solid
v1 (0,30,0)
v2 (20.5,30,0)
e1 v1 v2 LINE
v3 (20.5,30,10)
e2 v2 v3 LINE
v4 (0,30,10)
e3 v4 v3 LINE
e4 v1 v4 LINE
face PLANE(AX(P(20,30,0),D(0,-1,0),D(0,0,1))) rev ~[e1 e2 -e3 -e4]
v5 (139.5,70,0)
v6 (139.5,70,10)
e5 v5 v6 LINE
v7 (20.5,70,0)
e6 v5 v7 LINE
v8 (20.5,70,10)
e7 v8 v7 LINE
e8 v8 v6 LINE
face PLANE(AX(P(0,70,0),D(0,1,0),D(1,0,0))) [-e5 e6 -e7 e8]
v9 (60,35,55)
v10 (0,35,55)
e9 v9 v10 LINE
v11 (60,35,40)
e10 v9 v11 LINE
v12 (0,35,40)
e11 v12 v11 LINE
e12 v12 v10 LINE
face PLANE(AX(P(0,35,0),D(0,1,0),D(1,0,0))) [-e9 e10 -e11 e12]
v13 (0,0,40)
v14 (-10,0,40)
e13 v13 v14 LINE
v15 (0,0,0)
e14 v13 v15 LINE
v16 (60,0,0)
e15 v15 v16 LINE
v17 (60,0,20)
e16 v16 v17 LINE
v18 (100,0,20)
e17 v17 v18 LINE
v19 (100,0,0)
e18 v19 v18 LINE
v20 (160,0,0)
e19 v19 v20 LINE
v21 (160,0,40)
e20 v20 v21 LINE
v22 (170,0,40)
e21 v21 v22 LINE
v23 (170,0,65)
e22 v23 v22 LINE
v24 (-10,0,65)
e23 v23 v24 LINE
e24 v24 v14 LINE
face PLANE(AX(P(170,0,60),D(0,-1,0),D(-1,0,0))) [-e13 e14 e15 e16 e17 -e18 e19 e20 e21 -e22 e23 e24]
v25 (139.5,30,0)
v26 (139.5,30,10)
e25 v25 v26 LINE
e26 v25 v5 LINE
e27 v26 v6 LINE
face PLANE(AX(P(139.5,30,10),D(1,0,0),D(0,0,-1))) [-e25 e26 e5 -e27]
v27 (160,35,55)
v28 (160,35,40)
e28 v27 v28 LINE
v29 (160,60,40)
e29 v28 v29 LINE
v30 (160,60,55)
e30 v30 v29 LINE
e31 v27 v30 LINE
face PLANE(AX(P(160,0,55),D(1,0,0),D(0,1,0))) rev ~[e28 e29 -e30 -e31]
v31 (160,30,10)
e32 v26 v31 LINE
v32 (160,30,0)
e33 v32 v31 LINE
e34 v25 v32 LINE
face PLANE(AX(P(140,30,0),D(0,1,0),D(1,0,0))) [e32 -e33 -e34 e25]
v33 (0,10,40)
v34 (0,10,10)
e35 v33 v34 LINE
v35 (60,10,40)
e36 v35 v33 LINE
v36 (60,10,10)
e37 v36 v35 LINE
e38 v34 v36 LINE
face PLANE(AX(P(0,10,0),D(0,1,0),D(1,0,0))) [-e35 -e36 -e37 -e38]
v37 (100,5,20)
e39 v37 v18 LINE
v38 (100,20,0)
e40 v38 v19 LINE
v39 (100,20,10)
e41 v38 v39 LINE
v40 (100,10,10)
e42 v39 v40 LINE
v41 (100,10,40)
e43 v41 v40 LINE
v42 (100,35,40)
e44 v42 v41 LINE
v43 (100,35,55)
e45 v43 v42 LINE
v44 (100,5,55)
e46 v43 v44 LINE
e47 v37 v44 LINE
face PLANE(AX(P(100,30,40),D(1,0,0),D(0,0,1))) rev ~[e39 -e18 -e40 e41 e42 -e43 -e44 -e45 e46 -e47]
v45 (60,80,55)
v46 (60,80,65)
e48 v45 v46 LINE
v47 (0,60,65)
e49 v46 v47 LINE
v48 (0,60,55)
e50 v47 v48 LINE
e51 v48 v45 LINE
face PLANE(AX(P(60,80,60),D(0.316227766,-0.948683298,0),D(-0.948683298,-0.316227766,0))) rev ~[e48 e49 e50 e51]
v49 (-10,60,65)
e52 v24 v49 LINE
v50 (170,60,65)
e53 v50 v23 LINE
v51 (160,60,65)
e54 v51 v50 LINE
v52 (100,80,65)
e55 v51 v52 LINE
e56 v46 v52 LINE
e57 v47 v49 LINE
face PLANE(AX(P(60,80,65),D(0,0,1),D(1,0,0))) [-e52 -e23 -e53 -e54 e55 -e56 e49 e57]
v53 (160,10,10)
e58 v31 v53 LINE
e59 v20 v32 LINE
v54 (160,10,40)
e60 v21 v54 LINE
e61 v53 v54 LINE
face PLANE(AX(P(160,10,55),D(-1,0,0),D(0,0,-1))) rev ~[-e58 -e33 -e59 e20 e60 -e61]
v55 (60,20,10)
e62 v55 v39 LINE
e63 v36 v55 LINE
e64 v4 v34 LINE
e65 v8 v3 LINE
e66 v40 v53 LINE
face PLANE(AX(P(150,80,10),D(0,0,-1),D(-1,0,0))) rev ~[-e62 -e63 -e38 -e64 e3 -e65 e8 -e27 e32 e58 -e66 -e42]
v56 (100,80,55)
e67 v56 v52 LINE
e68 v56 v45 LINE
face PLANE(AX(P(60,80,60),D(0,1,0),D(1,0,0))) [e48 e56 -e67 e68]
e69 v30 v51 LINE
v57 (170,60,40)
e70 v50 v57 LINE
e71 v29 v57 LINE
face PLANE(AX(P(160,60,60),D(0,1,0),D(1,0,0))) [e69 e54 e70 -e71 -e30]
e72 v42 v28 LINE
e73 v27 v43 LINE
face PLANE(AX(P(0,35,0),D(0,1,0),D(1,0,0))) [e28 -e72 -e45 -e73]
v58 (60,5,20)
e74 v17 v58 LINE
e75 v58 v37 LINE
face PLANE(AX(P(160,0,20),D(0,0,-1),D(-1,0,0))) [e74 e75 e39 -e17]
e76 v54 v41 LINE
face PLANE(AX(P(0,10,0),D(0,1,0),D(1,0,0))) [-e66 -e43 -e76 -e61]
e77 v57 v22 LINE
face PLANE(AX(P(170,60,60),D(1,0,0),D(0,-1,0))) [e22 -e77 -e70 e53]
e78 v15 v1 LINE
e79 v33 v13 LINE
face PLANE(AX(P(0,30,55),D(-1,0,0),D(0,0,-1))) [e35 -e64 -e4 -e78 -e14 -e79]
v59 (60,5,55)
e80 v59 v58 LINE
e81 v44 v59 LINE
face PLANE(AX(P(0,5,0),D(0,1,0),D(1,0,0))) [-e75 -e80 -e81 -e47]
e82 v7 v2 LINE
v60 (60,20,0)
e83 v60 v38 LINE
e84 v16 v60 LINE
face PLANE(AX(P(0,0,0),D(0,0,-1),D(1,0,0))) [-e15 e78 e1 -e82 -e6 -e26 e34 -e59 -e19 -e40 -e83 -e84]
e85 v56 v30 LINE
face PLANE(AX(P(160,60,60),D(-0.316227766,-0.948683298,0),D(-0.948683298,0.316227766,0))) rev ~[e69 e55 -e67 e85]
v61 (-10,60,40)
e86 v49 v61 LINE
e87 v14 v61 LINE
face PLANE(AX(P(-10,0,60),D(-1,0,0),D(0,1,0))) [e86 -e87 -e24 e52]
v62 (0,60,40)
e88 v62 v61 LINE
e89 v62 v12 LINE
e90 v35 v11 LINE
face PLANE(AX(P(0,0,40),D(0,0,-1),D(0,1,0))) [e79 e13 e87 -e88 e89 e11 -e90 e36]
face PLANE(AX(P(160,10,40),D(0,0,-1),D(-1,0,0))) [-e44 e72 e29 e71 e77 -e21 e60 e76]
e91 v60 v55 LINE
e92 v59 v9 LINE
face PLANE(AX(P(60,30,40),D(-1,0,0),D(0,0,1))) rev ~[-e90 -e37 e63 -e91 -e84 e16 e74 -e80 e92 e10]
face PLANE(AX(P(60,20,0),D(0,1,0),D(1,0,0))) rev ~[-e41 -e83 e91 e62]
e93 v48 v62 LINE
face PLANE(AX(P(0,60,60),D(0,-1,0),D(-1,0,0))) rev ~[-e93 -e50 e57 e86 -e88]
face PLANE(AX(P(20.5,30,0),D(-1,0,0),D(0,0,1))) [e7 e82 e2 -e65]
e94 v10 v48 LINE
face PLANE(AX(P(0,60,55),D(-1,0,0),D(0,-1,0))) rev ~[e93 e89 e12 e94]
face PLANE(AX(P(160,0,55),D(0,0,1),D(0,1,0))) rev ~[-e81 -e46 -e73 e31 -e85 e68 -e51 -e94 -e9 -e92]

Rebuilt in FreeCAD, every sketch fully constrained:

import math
import FreeCAD as App
import Part
import Sketcher
from FreeCAD import Vector
Q = App.Units.Quantity

doc = App.newDocument("Part")
body = doc.addObject("PartDesign::Body", "Body")

# Sketch on XZ plane
sketch1 = doc.addObject("Sketcher::SketchObject", "Sketch")
body.addObject(sketch1)
sketch1.AttachmentSupport = (doc.XZ_Plane, [""])
sketch1.MapMode = "FlatFace"
sketch1.addGeometry([
    Part.LineSegment(Vector(160, 0, 0), Vector(0, 0, 0)),
    Part.LineSegment(Vector(0, 0, 0), Vector(0, 60, 0)),
    Part.LineSegment(Vector(0, 60, 0), Vector(160, 60, 0)),
    Part.LineSegment(Vector(160, 60, 0), Vector(160, 0, 0)),
], False)
sketch1.addConstraint([
    Sketcher.Constraint("Coincident", 0, 2, 1, 1),
    Sketcher.Constraint("Coincident", 1, 2, 2, 1),
    Sketcher.Constraint("Coincident", 2, 2, 3, 1),
    Sketcher.Constraint("Coincident", 3, 2, 0, 1),
    Sketcher.Constraint("Horizontal", 0),
    Sketcher.Constraint("Vertical", 1),
    Sketcher.Constraint("Horizontal", 2),
    Sketcher.Constraint("Vertical", 3),
    Sketcher.Constraint("Coincident", 0, 2, -1, 1),
    Sketcher.Constraint("DistanceX", 0, 2, 0, 1, Q("160 mm")),
    Sketcher.Constraint("DistanceY", 1, 1, 1, 2, Q("60 mm")),
])
pad1 = doc.addObject("PartDesign::Pad", "Pad")
body.addObject(pad1)
pad1.Profile = sketch1
pad1.Length = 80
pad1.Reversed = True

# Sketch on XZ plane
sketch2 = doc.addObject("Sketcher::SketchObject", "Sketch001")
body.addObject(sketch2)
sketch2.AttachmentSupport = (doc.XZ_Plane, [""])
sketch2.MapMode = "FlatFace"
sketch2.AttachmentOffset = App.Placement(Vector(0, 0, -80), App.Rotation())
sketch2.addGeometry([
    Part.LineSegment(Vector(160, 40, 0), Vector(160, 10, 0)),
    Part.LineSegment(Vector(160, 10, 0), Vector(0, 10, 0)),
    Part.LineSegment(Vector(0, 10, 0), Vector(0, 40, 0)),
    Part.LineSegment(Vector(0, 40, 0), Vector(160, 40, 0)),
], False)
sketch2.addConstraint([
    Sketcher.Constraint("Coincident", 0, 2, 1, 1),
    Sketcher.Constraint("Coincident", 1, 2, 2, 1),
    Sketcher.Constraint("Coincident", 2, 2, 3, 1),
    Sketcher.Constraint("Coincident", 3, 2, 0, 1),
    Sketcher.Constraint("Vertical", 0),
    Sketcher.Constraint("Horizontal", 1),
    Sketcher.Constraint("Vertical", 2),
    Sketcher.Constraint("Horizontal", 3),
    Sketcher.Constraint("PointOnObject", 1, 2, -2),
    Sketcher.Constraint("DistanceX", 1, 2, 1, 1, Q("160 mm")),
    Sketcher.Constraint("DistanceY", 0, 2, 0, 1, Q("30 mm")),
    Sketcher.Constraint("DistanceY", -1, 1, 0, 2, Q("10 mm")),
])
pocket1 = doc.addObject("PartDesign::Pocket", "Pocket")
body.addObject(pocket1)
pocket1.Profile = sketch2
pocket1.Length = 70
pocket1.Reversed = True

# Sketch on XZ plane
sketch3 = doc.addObject("Sketcher::SketchObject", "Sketch002")
body.addObject(sketch3)
sketch3.AttachmentSupport = (doc.XZ_Plane, [""])
sketch3.MapMode = "FlatFace"
sketch3.AttachmentOffset = App.Placement(Vector(0, 0, -80), App.Rotation())
sketch3.addGeometry([
    Part.LineSegment(Vector(160, 50, 0), Vector(160, 40, 0)),
    Part.LineSegment(Vector(160, 40, 0), Vector(0, 40, 0)),
    Part.LineSegment(Vector(0, 40, 0), Vector(0, 50, 0)),
    Part.LineSegment(Vector(0, 50, 0), Vector(160, 50, 0)),
], False)
sketch3.addConstraint([
    Sketcher.Constraint("Coincident", 0, 2, 1, 1),
    Sketcher.Constraint("Coincident", 1, 2, 2, 1),
    Sketcher.Constraint("Coincident", 2, 2, 3, 1),
    Sketcher.Constraint("Coincident", 3, 2, 0, 1),
    Sketcher.Constraint("Vertical", 0),
    Sketcher.Constraint("Horizontal", 1),
    Sketcher.Constraint("Vertical", 2),
    Sketcher.Constraint("Horizontal", 3),
    Sketcher.Constraint("PointOnObject", 1, 2, -2),
    Sketcher.Constraint("DistanceX", 1, 2, 1, 1, Q("160 mm")),
    Sketcher.Constraint("DistanceY", 0, 2, 0, 1, Q("10 mm")),
    Sketcher.Constraint("DistanceY", -1, 1, 0, 2, Q("40 mm")),
])
pocket2 = doc.addObject("PartDesign::Pocket", "Pocket001")
body.addObject(pocket2)
pocket2.Profile = sketch3
pocket2.Length = 10
pocket2.Reversed = True

# Sketch on XY plane
sketch4 = doc.addObject("Sketcher::SketchObject", "Sketch003")
body.addObject(sketch4)
sketch4.AttachmentSupport = (doc.XY_Plane, [""])
sketch4.MapMode = "FlatFace"
sketch4.AttachmentOffset = App.Placement(Vector(0, 0, 40), App.Rotation())
sketch4.addGeometry([
    Part.LineSegment(Vector(160, 70, 0), Vector(160, 10, 0)),  # 0
    Part.ArcOfCircle(Part.Circle(Vector(80, -13.3333, 0), Vector(0, 0, 1), 83.333324), math.radians(16.260183), math.radians(90)),  # 1
    Part.LineSegment(Vector(80, 70, 0), Vector(160, 70, 0)),  # 2
    Part.ArcOfCircle(Part.Circle(Vector(80, -13.3333, 0), Vector(0, 0, 1), 83.333324), math.radians(90), math.radians(163.739817)),  # 3
    Part.LineSegment(Vector(0, 10, 0), Vector(0, 70, 0)),  # 4
    Part.LineSegment(Vector(0, 70, 0), Vector(80, 70, 0)),  # 5
], False)
sketch4.addConstraint([
    Sketcher.Constraint("Coincident", 0, 2, 1, 1),
    Sketcher.Constraint("Tangent", 1, 2, 2, 1),
    Sketcher.Constraint("Coincident", 2, 2, 0, 1),
    Sketcher.Constraint("Coincident", 3, 2, 4, 1),
    Sketcher.Constraint("Coincident", 4, 2, 5, 1),
    Sketcher.Constraint("Tangent", 5, 2, 3, 1),
    Sketcher.Constraint("Vertical", 0),
    Sketcher.Constraint("Horizontal", 2),
    Sketcher.Constraint("Vertical", 4),
    Sketcher.Constraint("Horizontal", 5),
    Sketcher.Constraint("Coincident", 3, 3, 1, 3),
    Sketcher.Constraint("Equal", 1, 3),
    Sketcher.Constraint("PointOnObject", 3, 2, -2),
    Sketcher.Constraint("Horizontal", 0, 2, 3, 2),
    Sketcher.Constraint("DistanceX", 2, 1, 2, 2, Q("80 mm")),
    Sketcher.Constraint("DistanceY", 0, 2, 0, 1, Q("60 mm")),
    Sketcher.Constraint("DistanceY", -1, 1, 0, 2, Q("10 mm")),
])
pocket3 = doc.addObject("PartDesign::Pocket", "Pocket002")
body.addObject(pocket3)
pocket3.Profile = sketch4
pocket3.Length = 10
pocket3.Reversed = True

# Sketch on XY plane
sketch5 = doc.addObject("Sketcher::SketchObject", "Sketch004")
body.addObject(sketch5)
sketch5.AttachmentSupport = (doc.XY_Plane, [""])
sketch5.MapMode = "FlatFace"
sketch5.addGeometry([
    Part.LineSegment(Vector(0, 80, 0), Vector(20, 80, 0)),  # 0
    Part.LineSegment(Vector(20, 80, 0), Vector(20, 30, 0)),  # 1
    Part.LineSegment(Vector(20, 30, 0), Vector(0, 30, 0)),  # 2
    Part.LineSegment(Vector(0, 30, 0), Vector(0, 80, 0)),  # 3
    Part.LineSegment(Vector(140, 80, 0), Vector(160, 80, 0)),  # 4
    Part.LineSegment(Vector(160, 80, 0), Vector(160, 30, 0)),  # 5
    Part.LineSegment(Vector(160, 30, 0), Vector(140, 30, 0)),  # 6
    Part.LineSegment(Vector(140, 30, 0), Vector(140, 80, 0)),  # 7
], False)
sketch5.addConstraint([
    Sketcher.Constraint("Coincident", 0, 2, 1, 1),
    Sketcher.Constraint("Coincident", 1, 2, 2, 1),
    Sketcher.Constraint("Coincident", 2, 2, 3, 1),
    Sketcher.Constraint("Coincident", 3, 2, 0, 1),
    Sketcher.Constraint("Coincident", 4, 2, 5, 1),
    Sketcher.Constraint("Coincident", 5, 2, 6, 1),
    Sketcher.Constraint("Coincident", 6, 2, 7, 1),
    Sketcher.Constraint("Coincident", 7, 2, 4, 1),
    Sketcher.Constraint("Horizontal", 0),
    Sketcher.Constraint("Vertical", 1),
    Sketcher.Constraint("Horizontal", 2),
    Sketcher.Constraint("Vertical", 3),
    Sketcher.Constraint("Horizontal", 4),
    Sketcher.Constraint("Vertical", 5),
    Sketcher.Constraint("Horizontal", 6),
    Sketcher.Constraint("Vertical", 7),
    Sketcher.Constraint("PointOnObject", 2, 2, -2),
    Sketcher.Constraint("Horizontal", 3, 2, 4, 2),
    Sketcher.Constraint("Horizontal", 2, 2, 5, 2),
    Sketcher.Constraint("Equal", 2, 4),
    Sketcher.Constraint("DistanceX", 0, 1, 0, 2, Q("20 mm")),
    Sketcher.Constraint("DistanceY", 1, 2, 1, 1, Q("50 mm")),
    Sketcher.Constraint("DistanceY", -1, 1, 0, 2, Q("80 mm")),
    Sketcher.Constraint("DistanceX", -1, 1, 4, 2, Q("160 mm")),
])
pocket4 = doc.addObject("PartDesign::Pocket", "Pocket003")
body.addObject(pocket4)
pocket4.Profile = sketch5
pocket4.Length = 10
pocket4.Reversed = True

# Sketch on XZ plane
sketch6 = doc.addObject("Sketcher::SketchObject", "Sketch005")
body.addObject(sketch6)
sketch6.AttachmentSupport = (doc.XZ_Plane, [""])
sketch6.MapMode = "FlatFace"
sketch6.AttachmentOffset = App.Placement(Vector(0, 0, -80), App.Rotation())
sketch6.addGeometry([
    Part.LineSegment(Vector(140, 0, 0), Vector(20, 0, 0)),
    Part.LineSegment(Vector(20, 0, 0), Vector(20, 10, 0)),
    Part.LineSegment(Vector(20, 10, 0), Vector(140, 10, 0)),
    Part.LineSegment(Vector(140, 10, 0), Vector(140, 0, 0)),
], False)
sketch6.addConstraint([
    Sketcher.Constraint("Coincident", 0, 2, 1, 1),
    Sketcher.Constraint("Coincident", 1, 2, 2, 1),
    Sketcher.Constraint("Coincident", 2, 2, 3, 1),
    Sketcher.Constraint("Coincident", 3, 2, 0, 1),
    Sketcher.Constraint("Horizontal", 0),
    Sketcher.Constraint("Vertical", 1),
    Sketcher.Constraint("Horizontal", 2),
    Sketcher.Constraint("Vertical", 3),
    Sketcher.Constraint("PointOnObject", 0, 2, -1),
    Sketcher.Constraint("DistanceX", 0, 2, 0, 1, Q("120 mm")),
    Sketcher.Constraint("DistanceY", 1, 1, 1, 2, Q("10 mm")),
    Sketcher.Constraint("DistanceX", -1, 1, 0, 2, Q("20 mm")),
])
pocket5 = doc.addObject("PartDesign::Pocket", "Pocket004")
body.addObject(pocket5)
pocket5.Profile = sketch6
pocket5.Length = 10
pocket5.Reversed = True

# Sketch on XY plane
sketch7 = doc.addObject("Sketcher::SketchObject", "Sketch006")
body.addObject(sketch7)
sketch7.AttachmentSupport = (doc.XY_Plane, [""])
sketch7.MapMode = "FlatFace"
sketch7.AttachmentOffset = App.Placement(Vector(0, 0, 50), App.Rotation())
sketch7.addGeometry([
    Part.LineSegment(Vector(100, 80, 0), Vector(160, 80, 0)),  # 0
    Part.LineSegment(Vector(160, 80, 0), Vector(160, 60, 0)),  # 1
    Part.LineSegment(Vector(160, 60, 0), Vector(100, 80, 0)),  # 2
    Part.LineSegment(Vector(0, 80, 0), Vector(60, 80, 0)),  # 3
    Part.LineSegment(Vector(60, 80, 0), Vector(0, 60, 0)),  # 4
    Part.LineSegment(Vector(0, 60, 0), Vector(0, 80, 0)),  # 5
], False)
sketch7.addConstraint([
    Sketcher.Constraint("Coincident", 0, 2, 1, 1),
    Sketcher.Constraint("Coincident", 1, 2, 2, 1),
    Sketcher.Constraint("Coincident", 2, 2, 0, 1),
    Sketcher.Constraint("Coincident", 3, 2, 4, 1),
    Sketcher.Constraint("Coincident", 4, 2, 5, 1),
    Sketcher.Constraint("Coincident", 5, 2, 3, 1),
    Sketcher.Constraint("Horizontal", 0),
    Sketcher.Constraint("Vertical", 1),
    Sketcher.Constraint("Horizontal", 3),
    Sketcher.Constraint("Vertical", 5),
    Sketcher.Constraint("PointOnObject", 4, 2, -2),
    Sketcher.Constraint("Horizontal", 2, 2, 3, 2),
    Sketcher.Constraint("Horizontal", 1, 2, 4, 2),
    Sketcher.Constraint("Equal", 0, 3),
    Sketcher.Constraint("DistanceX", 0, 1, 0, 2, Q("60 mm")),
    Sketcher.Constraint("DistanceY", 1, 2, 1, 1, Q("20 mm")),
    Sketcher.Constraint("DistanceY", -1, 1, 1, 2, Q("60 mm")),
    Sketcher.Constraint("DistanceX", -1, 1, 0, 2, Q("160 mm")),
])
pocket6 = doc.addObject("PartDesign::Pocket", "Pocket005")
body.addObject(pocket6)
pocket6.Profile = sketch7
pocket6.Length = 10
pocket6.Reversed = True

# Sketch on YZ plane
sketch8 = doc.addObject("Sketcher::SketchObject", "Sketch007")
body.addObject(sketch8)
sketch8.AttachmentSupport = (doc.YZ_Plane, [""])
sketch8.MapMode = "FlatFace"
sketch8.AttachmentOffset = App.Placement(Vector(0, 0, 140), App.Rotation())
sketch8.addGeometry([
    Part.LineSegment(Vector(30, 0, 0), Vector(70, 0, 0)),
    Part.LineSegment(Vector(70, 0, 0), Vector(70, 10, 0)),
    Part.LineSegment(Vector(70, 10, 0), Vector(30, 10, 0)),
    Part.LineSegment(Vector(30, 10, 0), Vector(30, 0, 0)),
], False)
sketch8.addConstraint([
    Sketcher.Constraint("Coincident", 0, 2, 1, 1),
    Sketcher.Constraint("Coincident", 1, 2, 2, 1),
    Sketcher.Constraint("Coincident", 2, 2, 3, 1),
    Sketcher.Constraint("Coincident", 3, 2, 0, 1),
    Sketcher.Constraint("Horizontal", 0),
    Sketcher.Constraint("Vertical", 1),
    Sketcher.Constraint("Horizontal", 2),
    Sketcher.Constraint("Vertical", 3),
    Sketcher.Constraint("PointOnObject", 0, 2, -1),
    Sketcher.Constraint("DistanceX", 0, 1, 0, 2, Q("40 mm")),
    Sketcher.Constraint("DistanceY", 1, 1, 1, 2, Q("10 mm")),
    Sketcher.Constraint("DistanceX", -1, 1, 0, 2, Q("70 mm")),
])
pocket7 = doc.addObject("PartDesign::Pocket", "Pocket006")
body.addObject(pocket7)
pocket7.Profile = sketch8
pocket7.Length = 0.5

# Sketch on YZ plane
sketch9 = doc.addObject("Sketcher::SketchObject", "Sketch008")
body.addObject(sketch9)
sketch9.AttachmentSupport = (doc.YZ_Plane, [""])
sketch9.MapMode = "FlatFace"
sketch9.AttachmentOffset = App.Placement(Vector(0, 0, 20), App.Rotation())
sketch9.addGeometry([
    Part.LineSegment(Vector(30, 10, 0), Vector(70, 10, 0)),
    Part.LineSegment(Vector(70, 10, 0), Vector(70, 0, 0)),
    Part.LineSegment(Vector(70, 0, 0), Vector(30, 0, 0)),
    Part.LineSegment(Vector(30, 0, 0), Vector(30, 10, 0)),
], False)
sketch9.addConstraint([
    Sketcher.Constraint("Coincident", 0, 2, 1, 1),
    Sketcher.Constraint("Coincident", 1, 2, 2, 1),
    Sketcher.Constraint("Coincident", 2, 2, 3, 1),
    Sketcher.Constraint("Coincident", 3, 2, 0, 1),
    Sketcher.Constraint("Horizontal", 0),
    Sketcher.Constraint("Vertical", 1),
    Sketcher.Constraint("Horizontal", 2),
    Sketcher.Constraint("Vertical", 3),
    Sketcher.Constraint("PointOnObject", 1, 2, -1),
    Sketcher.Constraint("DistanceX", 0, 1, 0, 2, Q("40 mm")),
    Sketcher.Constraint("DistanceY", 1, 2, 1, 1, Q("10 mm")),
    Sketcher.Constraint("DistanceX", -1, 1, 0, 2, Q("70 mm")),
])
pocket8 = doc.addObject("PartDesign::Pocket", "Pocket007")
body.addObject(pocket8)
pocket8.Profile = sketch9
pocket8.Length = 0.5
pocket8.Reversed = True

# Sketch on XY plane
sketch10 = doc.addObject("Sketcher::SketchObject", "Sketch009")
body.addObject(sketch10)
sketch10.AttachmentSupport = (doc.XY_Plane, [""])
sketch10.MapMode = "FlatFace"
sketch10.AttachmentOffset = App.Placement(Vector(0, 0, 40), App.Rotation())
sketch10.addGeometry([
    Part.LineSegment(Vector(160, 10, 0), Vector(0, 10, 0)),
    Part.ArcOfCircle(Part.Circle(Vector(80, -13.3333, 0), Vector(0, 0, 1), 83.333324), math.radians(16.260183), math.radians(163.739817)),
], False)
sketch10.addConstraint([
    Sketcher.Constraint("Coincident", 0, 1, 1, 1),
    Sketcher.Constraint("Coincident", 1, 2, 0, 2),
    Sketcher.Constraint("Horizontal", 0),
    Sketcher.Constraint("PointOnObject", 1, 2, -2),
    Sketcher.Constraint("DistanceX", 0, 2, 0, 1, Q("160 mm")),
    Sketcher.Constraint("DistanceY", -1, 1, 0, 1, Q("10 mm")),
    Sketcher.Constraint("Radius", 1, Q("83.3333 mm")),
])
pocket9 = doc.addObject("PartDesign::Pocket", "Pocket008")
body.addObject(pocket9)
pocket9.Profile = sketch10
pocket9.Length = 10
pocket9.Reversed = True

# Sketch on XY plane
sketch11 = doc.addObject("Sketcher::SketchObject", "Sketch010")
body.addObject(sketch11)
sketch11.AttachmentSupport = (doc.XY_Plane, [""])
sketch11.MapMode = "FlatFace"
sketch11.AttachmentOffset = App.Placement(Vector(0, 0, 50), App.Rotation())
sketch11.addGeometry([
    Part.LineSegment(Vector(60, 80, 0), Vector(100, 80, 0)),  # 0
    Part.LineSegment(Vector(100, 80, 0), Vector(160, 60, 0)),  # 1
    Part.LineSegment(Vector(160, 60, 0), Vector(160, 10, 0)),  # 2
    Part.LineSegment(Vector(160, 10, 0), Vector(0, 10, 0)),  # 3
    Part.LineSegment(Vector(0, 10, 0), Vector(0, 60, 0)),  # 4
    Part.LineSegment(Vector(0, 60, 0), Vector(60, 80, 0)),  # 5
], False)
sketch11.addConstraint([
    Sketcher.Constraint("Coincident", 0, 2, 1, 1),
    Sketcher.Constraint("Coincident", 1, 2, 2, 1),
    Sketcher.Constraint("Coincident", 2, 2, 3, 1),
    Sketcher.Constraint("Coincident", 3, 2, 4, 1),
    Sketcher.Constraint("Coincident", 4, 2, 5, 1),
    Sketcher.Constraint("Coincident", 5, 2, 0, 1),
    Sketcher.Constraint("Horizontal", 0),
    Sketcher.Constraint("Vertical", 2),
    Sketcher.Constraint("Horizontal", 3),
    Sketcher.Constraint("Vertical", 4),
    Sketcher.Constraint("PointOnObject", 3, 2, -2),
    Sketcher.Constraint("Horizontal", 1, 2, 4, 2),
    Sketcher.Constraint("Equal", 1, 5),
    Sketcher.Constraint("DistanceX", 0, 1, 0, 2, Q("40 mm")),
    Sketcher.Constraint("DistanceX", 3, 2, 3, 1, Q("160 mm")),
    Sketcher.Constraint("DistanceY", 2, 2, 2, 1, Q("50 mm")),
    Sketcher.Constraint("DistanceY", -1, 1, 0, 2, Q("80 mm")),
    Sketcher.Constraint("DistanceY", -1, 1, 1, 2, Q("60 mm")),
])
pocket10 = doc.addObject("PartDesign::Pocket", "Pocket009")
body.addObject(pocket10)
pocket10.Profile = sketch11
pocket10.Length = 5
pocket10.Reversed = True

# Sketch on XZ plane
sketch12 = doc.addObject("Sketcher::SketchObject", "Sketch011")
body.addObject(sketch12)
sketch12.AttachmentSupport = (doc.XZ_Plane, [""])
sketch12.MapMode = "FlatFace"
sketch12.AttachmentOffset = App.Placement(Vector(0, 0, -10), App.Rotation())
sketch12.addGeometry([
    Part.LineSegment(Vector(0, 40, 0), Vector(0, 55, 0)),
    Part.LineSegment(Vector(0, 55, 0), Vector(160, 55, 0)),
    Part.LineSegment(Vector(160, 55, 0), Vector(160, 40, 0)),
    Part.LineSegment(Vector(160, 40, 0), Vector(0, 40, 0)),
], False)
sketch12.addConstraint([
    Sketcher.Constraint("Coincident", 0, 2, 1, 1),
    Sketcher.Constraint("Coincident", 1, 2, 2, 1),
    Sketcher.Constraint("Coincident", 2, 2, 3, 1),
    Sketcher.Constraint("Coincident", 3, 2, 0, 1),
    Sketcher.Constraint("Vertical", 0),
    Sketcher.Constraint("Horizontal", 1),
    Sketcher.Constraint("Vertical", 2),
    Sketcher.Constraint("Horizontal", 3),
    Sketcher.Constraint("PointOnObject", 0, 2, -2),
    Sketcher.Constraint("DistanceX", 1, 1, 1, 2, Q("160 mm")),
    Sketcher.Constraint("DistanceY", 0, 1, 0, 2, Q("15 mm")),
    Sketcher.Constraint("DistanceY", -1, 1, 0, 2, Q("55 mm")),
])
pad2 = doc.addObject("PartDesign::Pad", "Pad001")
body.addObject(pad2)
pad2.Profile = sketch12
pad2.Length = 20
pad2.Reversed = True

# Sketch on XZ plane
sketch13 = doc.addObject("Sketcher::SketchObject", "Sketch012")
body.addObject(sketch13)
sketch13.AttachmentSupport = (doc.XZ_Plane, [""])
sketch13.MapMode = "FlatFace"
sketch13.AttachmentOffset = App.Placement(Vector(0, 0, -30), App.Rotation())
sketch13.addGeometry([
    Part.LineSegment(Vector(100, 40, 0), Vector(60, 40, 0)),
    Part.LineSegment(Vector(60, 40, 0), Vector(60, 55, 0)),
    Part.LineSegment(Vector(60, 55, 0), Vector(100, 55, 0)),
    Part.LineSegment(Vector(100, 55, 0), Vector(100, 40, 0)),
], False)
sketch13.addConstraint([
    Sketcher.Constraint("Coincident", 0, 2, 1, 1),
    Sketcher.Constraint("Coincident", 1, 2, 2, 1),
    Sketcher.Constraint("Coincident", 2, 2, 3, 1),
    Sketcher.Constraint("Coincident", 3, 2, 0, 1),
    Sketcher.Constraint("Horizontal", 0),
    Sketcher.Constraint("Vertical", 1),
    Sketcher.Constraint("Horizontal", 2),
    Sketcher.Constraint("Vertical", 3),
    Sketcher.Constraint("DistanceY", 1, 1, 1, 2, Q("15 mm")),
    Sketcher.Constraint("DistanceX", -1, 1, 0, 2, Q("60 mm")),
    Sketcher.Constraint("DistanceX", 0, 2, 0, 1, Q("40 mm")),
    Sketcher.Constraint("DistanceY", -1, 1, 0, 2, Q("40 mm")),
])
pocket11 = doc.addObject("PartDesign::Pocket", "Pocket010")
body.addObject(pocket11)
pocket11.Profile = sketch13
pocket11.Length = 20
pocket11.Reversed = True

# Sketch on YZ plane
sketch14 = doc.addObject("Sketcher::SketchObject", "Sketch013")
body.addObject(sketch14)
sketch14.AttachmentSupport = (doc.YZ_Plane, [""])
sketch14.MapMode = "FlatFace"
sketch14.addGeometry([
    Part.LineSegment(Vector(30, 55, 0), Vector(30, 40, 0)),  # 0
    Part.LineSegment(Vector(30, 40, 0), Vector(0, 40, 0)),  # 1
    Part.LineSegment(Vector(0, 40, 0), Vector(0, 60, 0)),  # 2
    Part.LineSegment(Vector(0, 60, 0), Vector(60, 60, 0)),  # 3
    Part.LineSegment(Vector(60, 60, 0), Vector(60, 55, 0)),  # 4
    Part.LineSegment(Vector(60, 55, 0), Vector(30, 55, 0)),  # 5
], False)
sketch14.addConstraint([
    Sketcher.Constraint("Coincident", 0, 2, 1, 1),
    Sketcher.Constraint("Coincident", 1, 2, 2, 1),
    Sketcher.Constraint("Coincident", 2, 2, 3, 1),
    Sketcher.Constraint("Coincident", 3, 2, 4, 1),
    Sketcher.Constraint("Coincident", 4, 2, 5, 1),
    Sketcher.Constraint("Coincident", 5, 2, 0, 1),
    Sketcher.Constraint("Vertical", 0),
    Sketcher.Constraint("Horizontal", 1),
    Sketcher.Constraint("Vertical", 2),
    Sketcher.Constraint("Horizontal", 3),
    Sketcher.Constraint("Vertical", 4),
    Sketcher.Constraint("Horizontal", 5),
    Sketcher.Constraint("PointOnObject", 1, 2, -2),
    Sketcher.Constraint("Equal", 1, 5),
    Sketcher.Constraint("DistanceX", 1, 2, 1, 1, Q("30 mm")),
    Sketcher.Constraint("DistanceY", 0, 2, 0, 1, Q("15 mm")),
    Sketcher.Constraint("DistanceY", 2, 1, 2, 2, Q("20 mm")),
    Sketcher.Constraint("DistanceY", -1, 1, 0, 2, Q("40 mm")),
])
pad3 = doc.addObject("PartDesign::Pad", "Pad002")
body.addObject(pad3)
pad3.Profile = sketch14
pad3.Length = 10
pad3.Reversed = True

# Sketch on YZ plane
sketch15 = doc.addObject("Sketcher::SketchObject", "Sketch014")
body.addObject(sketch15)
sketch15.AttachmentSupport = (doc.YZ_Plane, [""])
sketch15.MapMode = "FlatFace"
sketch15.AttachmentOffset = App.Placement(Vector(0, 0, 160), App.Rotation())
sketch15.addGeometry([
    Part.LineSegment(Vector(0, 55, 0), Vector(60, 55, 0)),
    Part.LineSegment(Vector(60, 55, 0), Vector(60, 60, 0)),
    Part.LineSegment(Vector(60, 60, 0), Vector(0, 60, 0)),
    Part.LineSegment(Vector(0, 60, 0), Vector(0, 55, 0)),
], False)
sketch15.addConstraint([
    Sketcher.Constraint("Coincident", 0, 2, 1, 1),
    Sketcher.Constraint("Coincident", 1, 2, 2, 1),
    Sketcher.Constraint("Coincident", 2, 2, 3, 1),
    Sketcher.Constraint("Coincident", 3, 2, 0, 1),
    Sketcher.Constraint("Horizontal", 0),
    Sketcher.Constraint("Vertical", 1),
    Sketcher.Constraint("Horizontal", 2),
    Sketcher.Constraint("Vertical", 3),
    Sketcher.Constraint("PointOnObject", 2, 2, -2),
    Sketcher.Constraint("DistanceX", 0, 1, 0, 2, Q("60 mm")),
    Sketcher.Constraint("DistanceY", 1, 1, 1, 2, Q("5 mm")),
    Sketcher.Constraint("DistanceY", -1, 1, 0, 2, Q("55 mm")),
])
pad4 = doc.addObject("PartDesign::Pad", "Pad003")
body.addObject(pad4)
pad4.Profile = sketch15
pad4.Length = 10

# Sketch on YZ plane
sketch16 = doc.addObject("Sketcher::SketchObject", "Sketch015")
body.addObject(sketch16)
sketch16.AttachmentSupport = (doc.YZ_Plane, [""])
sketch16.MapMode = "FlatFace"
sketch16.AttachmentOffset = App.Placement(Vector(0, 0, -10), App.Rotation())
sketch16.addGeometry([
    Part.LineSegment(Vector(0, 55, 0), Vector(30, 55, 0)),
    Part.LineSegment(Vector(30, 55, 0), Vector(30, 40, 0)),
    Part.LineSegment(Vector(30, 40, 0), Vector(0, 40, 0)),
    Part.LineSegment(Vector(0, 40, 0), Vector(0, 55, 0)),
], False)
sketch16.addConstraint([
    Sketcher.Constraint("Coincident", 0, 2, 1, 1),
    Sketcher.Constraint("Coincident", 1, 2, 2, 1),
    Sketcher.Constraint("Coincident", 2, 2, 3, 1),
    Sketcher.Constraint("Coincident", 3, 2, 0, 1),
    Sketcher.Constraint("Horizontal", 0),
    Sketcher.Constraint("Vertical", 1),
    Sketcher.Constraint("Horizontal", 2),
    Sketcher.Constraint("Vertical", 3),
    Sketcher.Constraint("PointOnObject", 2, 2, -2),
    Sketcher.Constraint("DistanceX", 0, 1, 0, 2, Q("30 mm")),
    Sketcher.Constraint("DistanceY", 1, 2, 1, 1, Q("15 mm")),
    Sketcher.Constraint("DistanceY", -1, 1, 0, 2, Q("55 mm")),
])
pocket12 = doc.addObject("PartDesign::Pocket", "Pocket011")
body.addObject(pocket12)
pocket12.Profile = sketch16
pocket12.Length = 10
pocket12.Reversed = True

# Sketch on XY plane
sketch17 = doc.addObject("Sketcher::SketchObject", "Sketch016")
body.addObject(sketch17)
sketch17.AttachmentSupport = (doc.XY_Plane, [""])
sketch17.MapMode = "FlatFace"
sketch17.AttachmentOffset = App.Placement(Vector(0, 0, 60), App.Rotation())
sketch17.addGeometry([
    Part.LineSegment(Vector(170, 60, 0), Vector(160, 60, 0)),  # 0
    Part.LineSegment(Vector(160, 60, 0), Vector(100, 80, 0)),  # 1
    Part.LineSegment(Vector(100, 80, 0), Vector(60, 80, 0)),  # 2
    Part.LineSegment(Vector(60, 80, 0), Vector(0, 60, 0)),  # 3
    Part.LineSegment(Vector(0, 60, 0), Vector(-10, 60, 0)),  # 4
    Part.LineSegment(Vector(-10, 60, 0), Vector(-10, 0, 0)),  # 5
    Part.LineSegment(Vector(-10, 0, 0), Vector(170, 0, 0)),  # 6
    Part.LineSegment(Vector(170, 0, 0), Vector(170, 60, 0)),  # 7
], False)
sketch17.addConstraint([
    Sketcher.Constraint("Coincident", 0, 2, 1, 1),
    Sketcher.Constraint("Coincident", 1, 2, 2, 1),
    Sketcher.Constraint("Coincident", 2, 2, 3, 1),
    Sketcher.Constraint("Coincident", 3, 2, 4, 1),
    Sketcher.Constraint("Coincident", 4, 2, 5, 1),
    Sketcher.Constraint("Coincident", 5, 2, 6, 1),
    Sketcher.Constraint("Coincident", 6, 2, 7, 1),
    Sketcher.Constraint("Coincident", 7, 2, 0, 1),
    Sketcher.Constraint("Horizontal", 0),
    Sketcher.Constraint("Horizontal", 2),
    Sketcher.Constraint("Horizontal", 4),
    Sketcher.Constraint("Vertical", 5),
    Sketcher.Constraint("Horizontal", 6),
    Sketcher.Constraint("Vertical", 7),
    Sketcher.Constraint("PointOnObject", 3, 2, -2),
    Sketcher.Constraint("PointOnObject", 5, 2, -1),
    Sketcher.Constraint("Horizontal", 0, 2, 3, 2),
    Sketcher.Constraint("Equal", 0, 4),
    Sketcher.Constraint("Equal", 1, 3),
    Sketcher.Constraint("DistanceX", 0, 2, 0, 1, Q("10 mm")),
    Sketcher.Constraint("DistanceX", 2, 2, 2, 1, Q("40 mm")),
    Sketcher.Constraint("DistanceX", 6, 1, 6, 2, Q("180 mm")),
    Sketcher.Constraint("DistanceY", 5, 2, 5, 1, Q("60 mm")),
    Sketcher.Constraint("DistanceY", -1, 1, 1, 2, Q("80 mm")),
])
pad5 = doc.addObject("PartDesign::Pad", "Pad004")
body.addObject(pad5)
pad5.Profile = sketch17
pad5.Length = 5

# Sketch on XY plane
sketch18 = doc.addObject("Sketcher::SketchObject", "Sketch017")
body.addObject(sketch18)
sketch18.AttachmentSupport = (doc.XY_Plane, [""])
sketch18.MapMode = "FlatFace"
sketch18.addGeometry([
    Part.LineSegment(Vector(100, 0, 0), Vector(60, 0, 0)),
    Part.LineSegment(Vector(60, 0, 0), Vector(60, 20, 0)),
    Part.LineSegment(Vector(60, 20, 0), Vector(100, 20, 0)),
    Part.LineSegment(Vector(100, 20, 0), Vector(100, 0, 0)),
], False)
sketch18.addConstraint([
    Sketcher.Constraint("Coincident", 0, 2, 1, 1),
    Sketcher.Constraint("Coincident", 1, 2, 2, 1),
    Sketcher.Constraint("Coincident", 2, 2, 3, 1),
    Sketcher.Constraint("Coincident", 3, 2, 0, 1),
    Sketcher.Constraint("Horizontal", 0),
    Sketcher.Constraint("Vertical", 1),
    Sketcher.Constraint("Horizontal", 2),
    Sketcher.Constraint("Vertical", 3),
    Sketcher.Constraint("PointOnObject", 0, 2, -1),
    Sketcher.Constraint("DistanceX", 0, 2, 0, 1, Q("40 mm")),
    Sketcher.Constraint("DistanceY", 1, 1, 1, 2, Q("20 mm")),
    Sketcher.Constraint("DistanceX", -1, 1, 0, 2, Q("60 mm")),
])
pocket13 = doc.addObject("PartDesign::Pocket", "Pocket012")
body.addObject(pocket13)
pocket13.Profile = sketch18
pocket13.Length = 20
pocket13.Reversed = True

# Sketch on XZ plane
sketch19 = doc.addObject("Sketcher::SketchObject", "Sketch018")
body.addObject(sketch19)
sketch19.AttachmentSupport = (doc.XZ_Plane, [""])
sketch19.MapMode = "FlatFace"
sketch19.AttachmentOffset = App.Placement(Vector(0, 0, -10), App.Rotation())
sketch19.addGeometry([
    Part.LineSegment(Vector(100, 55, 0), Vector(100, 20, 0)),
    Part.LineSegment(Vector(100, 20, 0), Vector(60, 20, 0)),
    Part.LineSegment(Vector(60, 20, 0), Vector(60, 55, 0)),
    Part.LineSegment(Vector(60, 55, 0), Vector(100, 55, 0)),
], False)
sketch19.addConstraint([
    Sketcher.Constraint("Coincident", 0, 2, 1, 1),
    Sketcher.Constraint("Coincident", 1, 2, 2, 1),
    Sketcher.Constraint("Coincident", 2, 2, 3, 1),
    Sketcher.Constraint("Coincident", 3, 2, 0, 1),
    Sketcher.Constraint("Vertical", 0),
    Sketcher.Constraint("Horizontal", 1),
    Sketcher.Constraint("Vertical", 2),
    Sketcher.Constraint("Horizontal", 3),
    Sketcher.Constraint("DistanceX", 1, 2, 1, 1, Q("40 mm")),
    Sketcher.Constraint("DistanceY", 0, 2, 0, 1, Q("35 mm")),
    Sketcher.Constraint("DistanceX", -1, 1, 0, 2, Q("100 mm")),
    Sketcher.Constraint("DistanceY", -1, 1, 0, 2, Q("20 mm")),
])
pocket14 = doc.addObject("PartDesign::Pocket", "Pocket013")
body.addObject(pocket14)
pocket14.Profile = sketch19
pocket14.Length = 5
pocket14.Reversed = True

# Sketch on XZ plane
sketch20 = doc.addObject("Sketcher::SketchObject", "Sketch019")
body.addObject(sketch20)
sketch20.AttachmentSupport = (doc.XZ_Plane, [""])
sketch20.MapMode = "FlatFace"
sketch20.AttachmentOffset = App.Placement(Vector(0, 0, -30), App.Rotation())
sketch20.addGeometry([
    Part.LineSegment(Vector(0, 40, 0), Vector(0, 55, 0)),  # 0
    Part.LineSegment(Vector(0, 55, 0), Vector(60, 55, 0)),  # 1
    Part.LineSegment(Vector(60, 55, 0), Vector(60, 40, 0)),  # 2
    Part.LineSegment(Vector(60, 40, 0), Vector(0, 40, 0)),  # 3
    Part.LineSegment(Vector(160, 40, 0), Vector(100, 40, 0)),  # 4
    Part.LineSegment(Vector(100, 40, 0), Vector(100, 55, 0)),  # 5
    Part.LineSegment(Vector(100, 55, 0), Vector(160, 55, 0)),  # 6
    Part.LineSegment(Vector(160, 55, 0), Vector(160, 40, 0)),  # 7
], False)
sketch20.addConstraint([
    Sketcher.Constraint("Coincident", 0, 2, 1, 1),
    Sketcher.Constraint("Coincident", 1, 2, 2, 1),
    Sketcher.Constraint("Coincident", 2, 2, 3, 1),
    Sketcher.Constraint("Coincident", 3, 2, 0, 1),
    Sketcher.Constraint("Coincident", 4, 2, 5, 1),
    Sketcher.Constraint("Coincident", 5, 2, 6, 1),
    Sketcher.Constraint("Coincident", 6, 2, 7, 1),
    Sketcher.Constraint("Coincident", 7, 2, 4, 1),
    Sketcher.Constraint("Vertical", 0),
    Sketcher.Constraint("Horizontal", 1),
    Sketcher.Constraint("Vertical", 2),
    Sketcher.Constraint("Horizontal", 3),
    Sketcher.Constraint("Horizontal", 4),
    Sketcher.Constraint("Vertical", 5),
    Sketcher.Constraint("Horizontal", 6),
    Sketcher.Constraint("Vertical", 7),
    Sketcher.Constraint("PointOnObject", 0, 2, -2),
    Sketcher.Constraint("Horizontal", 3, 2, 4, 2),
    Sketcher.Constraint("Horizontal", 1, 2, 5, 2),
    Sketcher.Constraint("Equal", 3, 4),
    Sketcher.Constraint("DistanceX", 1, 1, 1, 2, Q("60 mm")),
    Sketcher.Constraint("DistanceY", 0, 1, 0, 2, Q("15 mm")),
    Sketcher.Constraint("DistanceY", -1, 1, 0, 2, Q("55 mm")),
    Sketcher.Constraint("DistanceX", -1, 1, 4, 2, Q("100 mm")),
])
pad6 = doc.addObject("PartDesign::Pad", "Pad005")
body.addObject(pad6)
pad6.Profile = sketch20
pad6.Length = 10
pad6.Reversed = True

# Sketch on XY plane
sketch21 = doc.addObject("Sketcher::SketchObject", "Sketch020")
body.addObject(sketch21)
sketch21.AttachmentSupport = (doc.XY_Plane, [""])
sketch21.MapMode = "FlatFace"
sketch21.AttachmentOffset = App.Placement(Vector(0, 0, 55), App.Rotation())
sketch21.addGeometry([
    Part.LineSegment(Vector(170, 0, 0), Vector(160, 0, 0)),  # 0
    Part.LineSegment(Vector(160, 0, 0), Vector(160, 60, 0)),  # 1
    Part.LineSegment(Vector(160, 60, 0), Vector(170, 60, 0)),  # 2
    Part.LineSegment(Vector(170, 60, 0), Vector(170, 0, 0)),  # 3
    Part.LineSegment(Vector(-10, 60, 0), Vector(0, 60, 0)),  # 4
    Part.LineSegment(Vector(0, 60, 0), Vector(0, 0, 0)),  # 5
    Part.LineSegment(Vector(0, 0, 0), Vector(-10, 0, 0)),  # 6
    Part.LineSegment(Vector(-10, 0, 0), Vector(-10, 60, 0)),  # 7
], False)
sketch21.addConstraint([
    Sketcher.Constraint("Coincident", 0, 2, 1, 1),
    Sketcher.Constraint("Coincident", 1, 2, 2, 1),
    Sketcher.Constraint("Coincident", 2, 2, 3, 1),
    Sketcher.Constraint("Coincident", 3, 2, 0, 1),
    Sketcher.Constraint("Coincident", 4, 2, 5, 1),
    Sketcher.Constraint("Coincident", 5, 2, 6, 1),
    Sketcher.Constraint("Coincident", 6, 2, 7, 1),
    Sketcher.Constraint("Coincident", 7, 2, 4, 1),
    Sketcher.Constraint("Horizontal", 0),
    Sketcher.Constraint("Vertical", 1),
    Sketcher.Constraint("Horizontal", 2),
    Sketcher.Constraint("Vertical", 3),
    Sketcher.Constraint("Horizontal", 4),
    Sketcher.Constraint("Vertical", 5),
    Sketcher.Constraint("Horizontal", 6),
    Sketcher.Constraint("Vertical", 7),
    Sketcher.Constraint("Coincident", 5, 2, -1, 1),
    Sketcher.Constraint("PointOnObject", 0, 2, -1),
    Sketcher.Constraint("Horizontal", 2, 2, 4, 2),
    Sketcher.Constraint("Equal", 2, 4),
    Sketcher.Constraint("DistanceX", 0, 2, 0, 1, Q("10 mm")),
    Sketcher.Constraint("DistanceY", 1, 1, 1, 2, Q("60 mm")),
    Sketcher.Constraint("DistanceX", -1, 1, 0, 2, Q("160 mm")),
])
pad7 = doc.addObject("PartDesign::Pad", "Pad006")
body.addObject(pad7)
pad7.Profile = sketch21
pad7.Length = 15
pad7.Reversed = True

# Sketch on XZ plane
sketch22 = doc.addObject("Sketcher::SketchObject", "Sketch021")
body.addObject(sketch22)
sketch22.AttachmentSupport = (doc.XZ_Plane, [""])
sketch22.MapMode = "FlatFace"
sketch22.AttachmentOffset = App.Placement(Vector(0, 0, -40), App.Rotation())
sketch22.addGeometry([
    Part.LineSegment(Vector(100, 55, 0), Vector(160, 55, 0)),  # 0
    Part.LineSegment(Vector(160, 55, 0), Vector(160, 40, 0)),  # 1
    Part.LineSegment(Vector(160, 40, 0), Vector(100, 40, 0)),  # 2
    Part.LineSegment(Vector(100, 40, 0), Vector(100, 55, 0)),  # 3
    Part.LineSegment(Vector(60, 40, 0), Vector(0, 40, 0)),  # 4
    Part.LineSegment(Vector(0, 40, 0), Vector(0, 55, 0)),  # 5
    Part.LineSegment(Vector(0, 55, 0), Vector(60, 55, 0)),  # 6
    Part.LineSegment(Vector(60, 55, 0), Vector(60, 40, 0)),  # 7
], False)
sketch22.addConstraint([
    Sketcher.Constraint("Coincident", 0, 2, 1, 1),
    Sketcher.Constraint("Coincident", 1, 2, 2, 1),
    Sketcher.Constraint("Coincident", 2, 2, 3, 1),
    Sketcher.Constraint("Coincident", 3, 2, 0, 1),
    Sketcher.Constraint("Coincident", 4, 2, 5, 1),
    Sketcher.Constraint("Coincident", 5, 2, 6, 1),
    Sketcher.Constraint("Coincident", 6, 2, 7, 1),
    Sketcher.Constraint("Coincident", 7, 2, 4, 1),
    Sketcher.Constraint("Horizontal", 0),
    Sketcher.Constraint("Vertical", 1),
    Sketcher.Constraint("Horizontal", 2),
    Sketcher.Constraint("Vertical", 3),
    Sketcher.Constraint("Horizontal", 4),
    Sketcher.Constraint("Vertical", 5),
    Sketcher.Constraint("Horizontal", 6),
    Sketcher.Constraint("Vertical", 7),
    Sketcher.Constraint("PointOnObject", 4, 2, -2),
    Sketcher.Constraint("Horizontal", 2, 2, 4, 2),
    Sketcher.Constraint("Horizontal", 3, 2, 5, 2),
    Sketcher.Constraint("Equal", 2, 4),
    Sketcher.Constraint("DistanceX", 0, 1, 0, 2, Q("60 mm")),
    Sketcher.Constraint("DistanceY", 1, 2, 1, 1, Q("15 mm")),
    Sketcher.Constraint("DistanceX", -1, 1, 0, 2, Q("160 mm")),
    Sketcher.Constraint("DistanceY", -1, 1, 0, 2, Q("55 mm")),
])
pocket15 = doc.addObject("PartDesign::Pocket", "Pocket014")
body.addObject(pocket15)
pocket15.Profile = sketch22
pocket15.Length = 5
pocket15.Reversed = True

doc.recompute()
